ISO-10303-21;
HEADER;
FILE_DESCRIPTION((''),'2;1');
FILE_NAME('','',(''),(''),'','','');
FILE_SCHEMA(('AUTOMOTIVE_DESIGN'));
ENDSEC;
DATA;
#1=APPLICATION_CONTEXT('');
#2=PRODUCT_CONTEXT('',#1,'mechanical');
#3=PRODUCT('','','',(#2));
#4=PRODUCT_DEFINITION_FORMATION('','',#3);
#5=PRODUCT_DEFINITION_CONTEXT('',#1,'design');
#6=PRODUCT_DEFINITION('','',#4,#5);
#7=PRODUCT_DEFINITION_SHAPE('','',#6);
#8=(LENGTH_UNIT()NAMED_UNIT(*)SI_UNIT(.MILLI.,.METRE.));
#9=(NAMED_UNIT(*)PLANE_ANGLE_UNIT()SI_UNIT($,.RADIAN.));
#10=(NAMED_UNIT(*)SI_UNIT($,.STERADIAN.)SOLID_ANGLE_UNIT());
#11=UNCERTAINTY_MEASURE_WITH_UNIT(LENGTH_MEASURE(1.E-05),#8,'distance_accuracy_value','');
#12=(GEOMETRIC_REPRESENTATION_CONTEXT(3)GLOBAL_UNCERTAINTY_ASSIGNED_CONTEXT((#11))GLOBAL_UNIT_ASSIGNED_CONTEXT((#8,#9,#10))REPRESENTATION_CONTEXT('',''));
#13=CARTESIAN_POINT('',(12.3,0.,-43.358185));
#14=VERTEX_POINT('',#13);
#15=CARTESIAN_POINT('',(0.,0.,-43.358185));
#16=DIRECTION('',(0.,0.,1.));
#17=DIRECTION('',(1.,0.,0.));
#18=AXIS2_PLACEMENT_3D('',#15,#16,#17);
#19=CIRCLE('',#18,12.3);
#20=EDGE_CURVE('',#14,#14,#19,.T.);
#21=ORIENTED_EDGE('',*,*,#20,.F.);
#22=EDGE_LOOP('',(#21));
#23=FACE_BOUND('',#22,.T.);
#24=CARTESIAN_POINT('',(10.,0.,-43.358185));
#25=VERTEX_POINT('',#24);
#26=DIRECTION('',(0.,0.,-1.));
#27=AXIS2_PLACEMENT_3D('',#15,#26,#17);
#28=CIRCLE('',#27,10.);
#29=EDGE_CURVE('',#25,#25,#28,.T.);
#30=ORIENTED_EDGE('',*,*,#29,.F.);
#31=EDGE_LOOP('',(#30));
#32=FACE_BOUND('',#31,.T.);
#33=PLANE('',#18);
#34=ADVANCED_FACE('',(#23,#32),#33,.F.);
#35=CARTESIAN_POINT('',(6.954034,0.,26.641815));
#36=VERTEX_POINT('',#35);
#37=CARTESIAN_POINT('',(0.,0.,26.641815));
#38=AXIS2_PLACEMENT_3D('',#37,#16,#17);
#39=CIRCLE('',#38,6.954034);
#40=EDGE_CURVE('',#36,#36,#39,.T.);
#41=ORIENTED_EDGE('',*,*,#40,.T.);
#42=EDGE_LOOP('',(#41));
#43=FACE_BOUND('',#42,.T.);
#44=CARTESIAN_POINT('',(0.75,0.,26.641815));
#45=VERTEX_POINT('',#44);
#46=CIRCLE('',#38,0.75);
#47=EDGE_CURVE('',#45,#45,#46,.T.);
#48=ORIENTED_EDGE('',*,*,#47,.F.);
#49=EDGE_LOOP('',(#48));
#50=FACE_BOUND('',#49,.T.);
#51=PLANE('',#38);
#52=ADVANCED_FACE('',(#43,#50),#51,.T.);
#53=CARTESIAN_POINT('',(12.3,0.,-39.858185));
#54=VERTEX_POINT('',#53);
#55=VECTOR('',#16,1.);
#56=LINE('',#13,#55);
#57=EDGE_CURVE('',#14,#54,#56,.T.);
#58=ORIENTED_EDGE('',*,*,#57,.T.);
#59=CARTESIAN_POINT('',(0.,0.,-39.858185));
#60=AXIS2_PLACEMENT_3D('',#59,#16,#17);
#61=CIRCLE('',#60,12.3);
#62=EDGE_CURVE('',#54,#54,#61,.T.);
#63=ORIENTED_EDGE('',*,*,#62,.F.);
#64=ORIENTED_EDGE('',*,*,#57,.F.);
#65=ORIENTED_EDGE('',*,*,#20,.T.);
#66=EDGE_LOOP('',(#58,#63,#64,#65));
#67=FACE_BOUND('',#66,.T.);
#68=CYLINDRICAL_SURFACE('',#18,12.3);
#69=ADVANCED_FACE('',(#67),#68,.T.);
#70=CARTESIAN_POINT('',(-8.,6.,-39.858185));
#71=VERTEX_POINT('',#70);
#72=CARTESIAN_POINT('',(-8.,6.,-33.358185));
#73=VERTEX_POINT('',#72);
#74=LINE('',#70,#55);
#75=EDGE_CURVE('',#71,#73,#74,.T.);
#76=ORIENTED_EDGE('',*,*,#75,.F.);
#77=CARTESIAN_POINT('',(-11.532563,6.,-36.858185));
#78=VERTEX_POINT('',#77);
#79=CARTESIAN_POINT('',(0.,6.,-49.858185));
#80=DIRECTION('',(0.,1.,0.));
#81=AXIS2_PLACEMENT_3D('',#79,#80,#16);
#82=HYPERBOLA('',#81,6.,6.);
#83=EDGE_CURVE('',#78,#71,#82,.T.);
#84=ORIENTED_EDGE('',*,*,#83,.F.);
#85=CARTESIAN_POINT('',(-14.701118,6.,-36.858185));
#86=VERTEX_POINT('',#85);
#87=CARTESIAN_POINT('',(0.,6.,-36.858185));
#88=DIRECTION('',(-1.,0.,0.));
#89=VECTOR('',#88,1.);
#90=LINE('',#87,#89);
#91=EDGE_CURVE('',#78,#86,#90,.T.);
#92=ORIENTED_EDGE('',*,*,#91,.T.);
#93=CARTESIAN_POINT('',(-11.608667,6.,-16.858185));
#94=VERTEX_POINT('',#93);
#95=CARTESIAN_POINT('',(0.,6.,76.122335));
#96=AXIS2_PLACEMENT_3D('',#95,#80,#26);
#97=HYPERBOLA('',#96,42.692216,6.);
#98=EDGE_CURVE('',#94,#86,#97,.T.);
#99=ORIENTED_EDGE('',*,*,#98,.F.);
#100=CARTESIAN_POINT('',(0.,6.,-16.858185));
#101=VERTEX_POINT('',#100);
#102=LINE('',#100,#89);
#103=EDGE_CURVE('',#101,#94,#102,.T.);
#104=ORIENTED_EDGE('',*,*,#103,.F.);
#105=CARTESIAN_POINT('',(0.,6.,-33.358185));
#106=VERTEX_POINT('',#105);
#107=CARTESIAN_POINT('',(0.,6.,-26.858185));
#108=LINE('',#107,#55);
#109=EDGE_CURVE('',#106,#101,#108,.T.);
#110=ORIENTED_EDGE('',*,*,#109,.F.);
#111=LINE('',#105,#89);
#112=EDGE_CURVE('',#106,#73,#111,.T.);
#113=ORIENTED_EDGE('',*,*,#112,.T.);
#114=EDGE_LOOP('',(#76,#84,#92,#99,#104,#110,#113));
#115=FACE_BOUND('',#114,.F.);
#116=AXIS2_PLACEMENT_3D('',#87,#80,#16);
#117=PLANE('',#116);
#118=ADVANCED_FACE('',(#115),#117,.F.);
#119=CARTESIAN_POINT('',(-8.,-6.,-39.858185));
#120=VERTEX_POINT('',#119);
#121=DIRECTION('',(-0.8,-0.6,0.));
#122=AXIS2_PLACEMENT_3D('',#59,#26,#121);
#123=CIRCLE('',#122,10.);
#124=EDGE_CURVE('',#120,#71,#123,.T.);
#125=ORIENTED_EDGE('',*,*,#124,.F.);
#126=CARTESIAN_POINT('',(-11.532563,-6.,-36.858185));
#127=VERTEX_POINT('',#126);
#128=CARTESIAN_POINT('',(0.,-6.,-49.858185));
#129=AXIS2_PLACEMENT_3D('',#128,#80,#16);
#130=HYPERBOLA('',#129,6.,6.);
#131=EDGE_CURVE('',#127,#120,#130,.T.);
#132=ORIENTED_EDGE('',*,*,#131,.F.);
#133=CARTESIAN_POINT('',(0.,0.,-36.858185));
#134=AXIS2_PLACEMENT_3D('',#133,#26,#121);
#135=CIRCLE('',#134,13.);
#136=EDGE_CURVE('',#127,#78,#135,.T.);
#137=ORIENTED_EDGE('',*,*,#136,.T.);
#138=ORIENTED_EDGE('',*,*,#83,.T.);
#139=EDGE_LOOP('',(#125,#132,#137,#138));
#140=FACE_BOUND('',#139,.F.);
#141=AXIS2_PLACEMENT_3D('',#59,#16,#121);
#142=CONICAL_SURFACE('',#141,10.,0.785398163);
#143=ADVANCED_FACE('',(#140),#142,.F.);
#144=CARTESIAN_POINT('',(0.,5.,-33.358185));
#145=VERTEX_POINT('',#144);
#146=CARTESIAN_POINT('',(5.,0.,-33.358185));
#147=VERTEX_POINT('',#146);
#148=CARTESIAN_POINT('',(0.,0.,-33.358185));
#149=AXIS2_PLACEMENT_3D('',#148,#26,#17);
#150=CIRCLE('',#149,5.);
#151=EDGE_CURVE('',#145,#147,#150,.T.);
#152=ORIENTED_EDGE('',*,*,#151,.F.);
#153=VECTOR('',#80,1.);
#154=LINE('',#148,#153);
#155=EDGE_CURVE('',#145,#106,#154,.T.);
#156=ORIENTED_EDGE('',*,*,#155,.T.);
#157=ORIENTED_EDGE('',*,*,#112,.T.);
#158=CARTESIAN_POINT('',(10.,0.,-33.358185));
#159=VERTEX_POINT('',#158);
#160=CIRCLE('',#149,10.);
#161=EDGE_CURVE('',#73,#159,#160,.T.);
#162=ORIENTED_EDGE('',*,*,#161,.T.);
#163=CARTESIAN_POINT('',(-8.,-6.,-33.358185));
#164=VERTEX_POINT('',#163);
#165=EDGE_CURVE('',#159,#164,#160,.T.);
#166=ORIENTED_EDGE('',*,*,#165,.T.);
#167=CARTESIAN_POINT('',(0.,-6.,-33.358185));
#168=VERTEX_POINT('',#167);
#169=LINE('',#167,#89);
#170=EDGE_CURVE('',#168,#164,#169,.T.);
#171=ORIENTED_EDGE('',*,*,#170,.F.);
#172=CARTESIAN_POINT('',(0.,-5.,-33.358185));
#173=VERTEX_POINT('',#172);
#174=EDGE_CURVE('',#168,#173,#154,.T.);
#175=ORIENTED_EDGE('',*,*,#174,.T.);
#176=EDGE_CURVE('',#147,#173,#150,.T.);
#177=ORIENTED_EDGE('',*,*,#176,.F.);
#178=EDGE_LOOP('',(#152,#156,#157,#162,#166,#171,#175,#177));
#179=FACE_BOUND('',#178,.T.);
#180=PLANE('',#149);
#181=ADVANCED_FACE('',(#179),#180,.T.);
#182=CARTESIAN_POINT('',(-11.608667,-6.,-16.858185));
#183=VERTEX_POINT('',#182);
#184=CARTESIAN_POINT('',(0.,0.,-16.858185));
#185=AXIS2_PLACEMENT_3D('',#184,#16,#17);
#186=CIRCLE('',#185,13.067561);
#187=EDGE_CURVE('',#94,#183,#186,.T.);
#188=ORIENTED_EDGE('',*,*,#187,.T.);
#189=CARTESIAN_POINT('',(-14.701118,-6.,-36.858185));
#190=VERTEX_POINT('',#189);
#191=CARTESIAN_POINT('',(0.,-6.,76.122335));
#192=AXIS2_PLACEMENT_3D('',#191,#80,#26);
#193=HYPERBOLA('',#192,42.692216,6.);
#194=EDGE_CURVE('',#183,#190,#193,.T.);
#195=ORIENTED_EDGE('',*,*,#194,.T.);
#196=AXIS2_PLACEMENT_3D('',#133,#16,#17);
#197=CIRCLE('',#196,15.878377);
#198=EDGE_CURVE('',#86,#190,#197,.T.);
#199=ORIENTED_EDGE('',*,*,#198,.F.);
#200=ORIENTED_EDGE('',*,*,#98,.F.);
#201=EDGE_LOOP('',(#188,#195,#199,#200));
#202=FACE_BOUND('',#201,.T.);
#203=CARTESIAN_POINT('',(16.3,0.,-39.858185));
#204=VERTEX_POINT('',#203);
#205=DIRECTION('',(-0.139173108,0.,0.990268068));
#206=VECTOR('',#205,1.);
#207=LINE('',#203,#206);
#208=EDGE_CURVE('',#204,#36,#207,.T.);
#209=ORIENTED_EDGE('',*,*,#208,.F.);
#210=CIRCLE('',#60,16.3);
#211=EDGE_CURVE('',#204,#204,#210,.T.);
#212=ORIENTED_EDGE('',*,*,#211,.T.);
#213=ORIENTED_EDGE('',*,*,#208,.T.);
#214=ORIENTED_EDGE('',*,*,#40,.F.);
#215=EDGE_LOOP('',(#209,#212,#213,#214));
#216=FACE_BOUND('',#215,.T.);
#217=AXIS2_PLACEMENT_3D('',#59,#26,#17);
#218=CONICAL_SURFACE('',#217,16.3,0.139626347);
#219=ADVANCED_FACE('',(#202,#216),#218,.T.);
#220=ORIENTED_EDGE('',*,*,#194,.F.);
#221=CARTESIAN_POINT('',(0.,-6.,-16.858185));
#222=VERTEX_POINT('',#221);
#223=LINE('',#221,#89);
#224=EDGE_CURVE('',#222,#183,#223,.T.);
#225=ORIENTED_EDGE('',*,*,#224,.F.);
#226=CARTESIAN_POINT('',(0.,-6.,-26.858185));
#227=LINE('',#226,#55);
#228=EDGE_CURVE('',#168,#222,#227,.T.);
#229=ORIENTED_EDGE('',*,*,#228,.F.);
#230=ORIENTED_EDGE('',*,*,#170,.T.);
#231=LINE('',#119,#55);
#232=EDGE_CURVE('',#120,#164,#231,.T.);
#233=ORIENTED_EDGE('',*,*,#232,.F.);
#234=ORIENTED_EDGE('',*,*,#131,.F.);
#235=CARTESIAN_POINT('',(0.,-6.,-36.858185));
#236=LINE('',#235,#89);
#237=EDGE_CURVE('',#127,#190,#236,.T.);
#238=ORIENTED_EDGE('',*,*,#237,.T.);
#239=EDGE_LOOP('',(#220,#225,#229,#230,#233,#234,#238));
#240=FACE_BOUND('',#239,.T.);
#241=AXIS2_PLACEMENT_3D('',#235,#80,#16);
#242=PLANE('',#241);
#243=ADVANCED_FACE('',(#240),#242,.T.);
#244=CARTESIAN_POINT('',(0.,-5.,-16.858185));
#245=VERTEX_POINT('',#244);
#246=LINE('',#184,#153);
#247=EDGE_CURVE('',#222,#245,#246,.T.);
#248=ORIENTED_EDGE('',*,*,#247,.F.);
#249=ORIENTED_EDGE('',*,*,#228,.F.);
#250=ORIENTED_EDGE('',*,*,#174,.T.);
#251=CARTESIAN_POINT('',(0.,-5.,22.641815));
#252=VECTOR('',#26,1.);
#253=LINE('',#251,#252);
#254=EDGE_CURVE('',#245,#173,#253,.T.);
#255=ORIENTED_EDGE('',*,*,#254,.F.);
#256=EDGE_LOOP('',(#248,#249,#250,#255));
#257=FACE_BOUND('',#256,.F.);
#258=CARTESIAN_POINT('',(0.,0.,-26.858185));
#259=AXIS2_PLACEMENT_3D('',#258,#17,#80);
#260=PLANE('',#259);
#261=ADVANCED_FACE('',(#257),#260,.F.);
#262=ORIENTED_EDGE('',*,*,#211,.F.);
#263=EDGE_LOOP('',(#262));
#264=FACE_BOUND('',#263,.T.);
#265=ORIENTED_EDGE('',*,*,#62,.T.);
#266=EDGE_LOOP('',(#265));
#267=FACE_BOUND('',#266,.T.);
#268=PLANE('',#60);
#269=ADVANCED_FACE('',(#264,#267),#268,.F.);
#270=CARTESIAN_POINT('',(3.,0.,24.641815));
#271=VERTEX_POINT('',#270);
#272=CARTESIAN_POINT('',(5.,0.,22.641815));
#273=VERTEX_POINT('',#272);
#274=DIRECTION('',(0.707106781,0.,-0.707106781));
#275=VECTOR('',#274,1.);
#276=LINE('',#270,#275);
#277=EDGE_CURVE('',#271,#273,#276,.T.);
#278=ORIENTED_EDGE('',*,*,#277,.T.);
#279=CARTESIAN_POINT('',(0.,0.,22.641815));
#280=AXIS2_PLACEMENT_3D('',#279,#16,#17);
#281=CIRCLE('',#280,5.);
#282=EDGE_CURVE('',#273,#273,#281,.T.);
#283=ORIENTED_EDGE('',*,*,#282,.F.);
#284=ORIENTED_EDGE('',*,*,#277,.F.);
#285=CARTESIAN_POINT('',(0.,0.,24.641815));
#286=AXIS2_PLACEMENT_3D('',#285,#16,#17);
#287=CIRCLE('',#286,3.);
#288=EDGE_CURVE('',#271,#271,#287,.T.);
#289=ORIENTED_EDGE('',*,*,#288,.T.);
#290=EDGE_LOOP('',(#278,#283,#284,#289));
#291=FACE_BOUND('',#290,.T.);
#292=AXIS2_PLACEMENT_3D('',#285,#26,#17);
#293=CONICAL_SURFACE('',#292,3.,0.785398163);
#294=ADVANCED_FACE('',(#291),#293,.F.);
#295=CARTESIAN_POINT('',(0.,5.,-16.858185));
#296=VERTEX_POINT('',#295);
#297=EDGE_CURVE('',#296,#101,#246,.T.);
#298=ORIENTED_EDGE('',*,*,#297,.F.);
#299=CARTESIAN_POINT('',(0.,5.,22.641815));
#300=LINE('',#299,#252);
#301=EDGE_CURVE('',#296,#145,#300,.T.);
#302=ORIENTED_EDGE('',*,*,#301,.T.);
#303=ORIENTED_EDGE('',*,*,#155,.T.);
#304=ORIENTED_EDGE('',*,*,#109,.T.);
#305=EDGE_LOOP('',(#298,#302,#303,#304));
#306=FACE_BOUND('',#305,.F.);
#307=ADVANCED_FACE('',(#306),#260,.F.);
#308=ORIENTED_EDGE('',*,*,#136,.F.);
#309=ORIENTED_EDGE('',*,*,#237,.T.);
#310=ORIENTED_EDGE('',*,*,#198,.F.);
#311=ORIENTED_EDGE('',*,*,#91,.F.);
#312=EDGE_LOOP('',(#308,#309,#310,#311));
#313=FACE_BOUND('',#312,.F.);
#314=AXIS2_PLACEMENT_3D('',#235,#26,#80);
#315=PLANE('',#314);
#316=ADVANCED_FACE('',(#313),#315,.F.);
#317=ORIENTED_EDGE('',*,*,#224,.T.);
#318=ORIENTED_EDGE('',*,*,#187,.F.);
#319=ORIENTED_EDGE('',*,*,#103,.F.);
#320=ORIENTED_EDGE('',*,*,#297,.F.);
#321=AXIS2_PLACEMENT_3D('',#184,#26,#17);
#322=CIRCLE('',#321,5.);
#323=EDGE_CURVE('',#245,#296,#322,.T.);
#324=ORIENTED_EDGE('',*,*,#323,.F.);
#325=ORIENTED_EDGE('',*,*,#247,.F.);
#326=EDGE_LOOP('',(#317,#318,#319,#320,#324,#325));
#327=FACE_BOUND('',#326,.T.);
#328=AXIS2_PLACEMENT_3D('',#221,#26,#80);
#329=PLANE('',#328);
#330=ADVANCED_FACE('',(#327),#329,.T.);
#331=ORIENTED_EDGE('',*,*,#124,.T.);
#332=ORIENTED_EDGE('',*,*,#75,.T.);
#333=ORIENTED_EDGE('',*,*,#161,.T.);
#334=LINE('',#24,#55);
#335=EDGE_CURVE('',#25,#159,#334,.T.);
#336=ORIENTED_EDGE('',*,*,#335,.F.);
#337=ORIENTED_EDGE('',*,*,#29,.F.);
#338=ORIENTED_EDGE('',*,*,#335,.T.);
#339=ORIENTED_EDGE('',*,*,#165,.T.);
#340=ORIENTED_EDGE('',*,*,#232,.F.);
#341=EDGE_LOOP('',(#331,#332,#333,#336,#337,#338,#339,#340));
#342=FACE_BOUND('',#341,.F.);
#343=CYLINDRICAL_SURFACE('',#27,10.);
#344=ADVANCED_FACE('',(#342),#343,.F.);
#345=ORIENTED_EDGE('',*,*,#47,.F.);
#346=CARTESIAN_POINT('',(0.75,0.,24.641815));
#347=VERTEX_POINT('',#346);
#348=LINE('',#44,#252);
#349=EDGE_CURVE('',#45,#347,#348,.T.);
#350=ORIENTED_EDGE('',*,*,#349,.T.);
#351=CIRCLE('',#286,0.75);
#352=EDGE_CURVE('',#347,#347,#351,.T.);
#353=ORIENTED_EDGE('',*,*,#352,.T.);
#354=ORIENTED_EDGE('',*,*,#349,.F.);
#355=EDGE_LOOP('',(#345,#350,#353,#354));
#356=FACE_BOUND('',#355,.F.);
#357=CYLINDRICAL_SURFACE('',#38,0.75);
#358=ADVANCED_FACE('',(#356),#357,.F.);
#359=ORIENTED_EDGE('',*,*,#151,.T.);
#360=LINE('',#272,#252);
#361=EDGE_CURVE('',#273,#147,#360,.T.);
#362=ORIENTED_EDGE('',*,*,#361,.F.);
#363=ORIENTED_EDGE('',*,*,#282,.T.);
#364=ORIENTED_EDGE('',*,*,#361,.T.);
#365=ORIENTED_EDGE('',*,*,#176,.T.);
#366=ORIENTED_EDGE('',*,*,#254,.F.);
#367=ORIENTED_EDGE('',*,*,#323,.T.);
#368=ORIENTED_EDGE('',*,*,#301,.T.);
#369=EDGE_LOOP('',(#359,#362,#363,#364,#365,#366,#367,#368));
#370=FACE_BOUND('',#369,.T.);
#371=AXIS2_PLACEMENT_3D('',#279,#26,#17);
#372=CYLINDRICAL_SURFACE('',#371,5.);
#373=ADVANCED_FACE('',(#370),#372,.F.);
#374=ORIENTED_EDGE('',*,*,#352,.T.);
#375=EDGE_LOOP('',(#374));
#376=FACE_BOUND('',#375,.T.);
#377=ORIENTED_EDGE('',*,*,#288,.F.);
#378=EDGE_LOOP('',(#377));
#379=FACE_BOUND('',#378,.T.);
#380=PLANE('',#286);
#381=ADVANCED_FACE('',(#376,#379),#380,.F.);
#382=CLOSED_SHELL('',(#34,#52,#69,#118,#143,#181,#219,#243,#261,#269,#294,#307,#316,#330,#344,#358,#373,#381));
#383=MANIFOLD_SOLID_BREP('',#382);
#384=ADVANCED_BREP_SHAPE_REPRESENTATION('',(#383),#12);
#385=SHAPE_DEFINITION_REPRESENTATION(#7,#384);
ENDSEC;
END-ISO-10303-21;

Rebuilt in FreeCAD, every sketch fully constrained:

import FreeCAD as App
import Part
import Sketcher
Q = App.Units.Quantity


def edges_at(feature, points):
    """Names of the edges that pass closest to the given points."""
    edges = feature.Shape.Edges
    near = lambda p: min(range(len(edges)), key=lambda i: edges[i].distToShape(Part.Vertex(*p))[0])
    return sorted({f"Edge{near(p) + 1}" for p in points})

doc = App.newDocument("Part")
params = doc.addObject("Spreadsheet::Sheet", "Params")
for row, (alias, value) in enumerate([
    ("sketch1_width", "3 mm"),
    ("sketch1_width2", "4 mm"),
    ("sketch1_height", "2 mm"),
    ("sketch1_height2", "66 mm"),
    ("sketch1_width3", "7.3 mm"),
    ("revolution_angle", "360 deg"),
    ("sketch2_diameter", "1.5 mm"),
    ("sketch3_width", "12 mm"),
    ("sketch3_height", "20 mm"),
    ("pocket2_length", "25 mm"),
    ("sketch4_diameter", "20 mm"),
    ("pocket3_length", "10 mm"),
    ("chamfer_size", "3 mm"),
], start=1):
    params.set(f"A{row}", alias)
    params.set(f"B{row}", "=" + value)
    params.setAlias(f"B{row}", alias)

body = doc.addObject("PartDesign::Body", "Body")

# Sketch on XZ plane
sketch1 = body.newObject("Sketcher::SketchObject", "Sketch")
sketch1.AttachmentSupport = (doc.getObject("XZ_Plane"), [""])
sketch1.MapMode = "FlatFace"
sketch1.addGeometry([
    Part.LineSegment(App.Vector(7, 26.6, 0), App.Vector(0, 26.6, 0)),  # 0
    Part.LineSegment(App.Vector(0, 26.6, 0), App.Vector(0, 24.6, 0)),  # 1
    Part.LineSegment(App.Vector(0, 24.6, 0), App.Vector(3, 24.6, 0)),  # 2
    Part.LineSegment(App.Vector(3, 24.6, 0), App.Vector(5, 22.6, 0)),  # 3
    Part.LineSegment(App.Vector(5, 22.6, 0), App.Vector(5, -43.4, 0)),  # 4
    Part.LineSegment(App.Vector(5, -43.4, 0), App.Vector(12.3, -43.4, 0)),  # 5
    Part.LineSegment(App.Vector(12.3, -43.4, 0), App.Vector(12.3, -39.9, 0)),  # 6
    Part.LineSegment(App.Vector(12.3, -39.9, 0), App.Vector(16.3, -39.9, 0)),  # 7
    Part.LineSegment(App.Vector(16.3, -39.9, 0), App.Vector(7, 26.6, 0)),  # 8
], False)
sketch1.addConstraint([
    Sketcher.Constraint("Coincident", 0, 2, 1, 1),
    Sketcher.Constraint("Coincident", 1, 2, 2, 1),
    Sketcher.Constraint("Coincident", 2, 2, 3, 1),
    Sketcher.Constraint("Coincident", 3, 2, 4, 1),
    Sketcher.Constraint("Coincident", 4, 2, 5, 1),
    Sketcher.Constraint("Coincident", 5, 2, 6, 1),
    Sketcher.Constraint("Coincident", 6, 2, 7, 1),
    Sketcher.Constraint("Coincident", 7, 2, 8, 1),
    Sketcher.Constraint("Coincident", 8, 2, 0, 1),
    Sketcher.Constraint("Horizontal", 0),
    Sketcher.Constraint("Vertical", 1),
    Sketcher.Constraint("Horizontal", 2),
    Sketcher.Constraint("Vertical", 4),
    Sketcher.Constraint("Horizontal", 5),
    Sketcher.Constraint("Vertical", 6),
    Sketcher.Constraint("Horizontal", 7),
    Sketcher.Constraint("PointOnObject", 0, 2, -2),
    Sketcher.Constraint("DistanceX", 2, 1, 2, 2, 3.0),
    Sketcher.Constraint("DistanceX", 7, 1, 7, 2, 4.0),
    Sketcher.Constraint("DistanceY", 1, 2, 1, 1, 2.0),
    Sketcher.Constraint("DistanceY", 4, 2, 4, 1, 66.0),
    Sketcher.Constraint("Angle", 3, Q("-45 deg")),
    Sketcher.Constraint("Angle", 8, Q("98 deg")),
    Sketcher.Constraint("DistanceX", 5, 1, 5, 2, 7.3),
    Sketcher.Constraint("DistanceY", 6, 1, 6, 2, 3.5),
    Sketcher.Constraint("DistanceX", -1, 1, 3, 2, 5.0),
    Sketcher.Constraint("DistanceY", -1, 1, 0, 2, 26.641815),
])
sketch1.setExpression("Constraints[17]", "Params.sketch1_width")
sketch1.setExpression("Constraints[18]", "Params.sketch1_width2")
sketch1.setExpression("Constraints[19]", "Params.sketch1_height")
sketch1.setExpression("Constraints[20]", "Params.sketch1_height2")
sketch1.setExpression("Constraints[23]", "Params.sketch1_width3")
revolution = body.newObject("PartDesign::Revolution", "Revolution")
revolution.Profile = sketch1
revolution.ReferenceAxis = (sketch1, ["V_Axis"])
revolution.setExpression("Angle", "Params.revolution_angle")

# Sketch on XY plane
sketch2 = body.newObject("Sketcher::SketchObject", "Sketch001")
sketch2.AttachmentSupport = (doc.getObject("XY_Plane"), [""])
sketch2.MapMode = "FlatFace"
sketch2.AttachmentOffset = App.Placement(App.Vector(0, 0, 26.641815), App.Rotation())
sketch2.addGeometry(Part.Circle(App.Vector(0, 0, 0), App.Vector(0, 0, 1), 0.8), False)
sketch2.addConstraint([
    Sketcher.Constraint("Coincident", 0, 3, -1, 1),
    Sketcher.Constraint("Diameter", 0, 1.5),
])
sketch2.setExpression("Constraints[1]", "Params.sketch2_diameter")
pocket1 = body.newObject("PartDesign::Pocket", "Pocket")
pocket1.Profile = sketch2
pocket1.Type = "ThroughAll"

# Sketch on YZ plane
sketch3 = body.newObject("Sketcher::SketchObject", "Sketch002")
sketch3.AttachmentSupport = (doc.getObject("YZ_Plane"), [""])
sketch3.MapMode = "FlatFace"
sketch3.addGeometry([
    Part.LineSegment(App.Vector(-6, -17, 0), App.Vector(-6, -37, 0)),
    Part.LineSegment(App.Vector(-6, -37, 0), App.Vector(6, -37, 0)),
    Part.LineSegment(App.Vector(6, -37, 0), App.Vector(6, -17, 0)),
    Part.LineSegment(App.Vector(6, -17, 0), App.Vector(-6, -17, 0)),
], False)
sketch3.addConstraint([
    Sketcher.Constraint("Coincident", 0, 2, 1, 1),
    Sketcher.Constraint("Coincident", 1, 2, 2, 1),
    Sketcher.Constraint("Coincident", 2, 2, 3, 1),
    Sketcher.Constraint("Coincident", 3, 2, 0, 1),
    Sketcher.Constraint("Vertical", 0),
    Sketcher.Constraint("Horizontal", 1),
    Sketcher.Constraint("Vertical", 2),
    Sketcher.Constraint("Horizontal", 3),
    Sketcher.Constraint("DistanceX", 1, 1, 1, 2, 12.0),
    Sketcher.Constraint("DistanceY", 0, 2, 0, 1, 20.0),
    Sketcher.Constraint("DistanceX", 0, 2, -1, 1, 6.0),
    Sketcher.Constraint("DistanceY", 0, 2, -1, 1, 36.858185),
])
sketch3.setExpression("Constraints[8]", "Params.sketch3_width")
sketch3.setExpression("Constraints[9]", "Params.sketch3_height")
pocket2 = body.newObject("PartDesign::Pocket", "Pocket001")
pocket2.Profile = sketch3
pocket2.setExpression("Length", "Params.pocket2_length")

# Sketch on XY plane
sketch4 = body.newObject("Sketcher::SketchObject", "Sketch003")
sketch4.AttachmentSupport = (doc.getObject("XY_Plane"), [""])
sketch4.MapMode = "FlatFace"
sketch4.AttachmentOffset = App.Placement(App.Vector(0, 0, -43.358185), App.Rotation())
sketch4.addGeometry(Part.Circle(App.Vector(0, 0, 0), App.Vector(0, 0, 1), 10), False)
sketch4.addConstraint([
    Sketcher.Constraint("Coincident", 0, 3, -1, 1),
    Sketcher.Constraint("Diameter", 0, 20.0),
])
sketch4.setExpression("Constraints[1]", "Params.sketch4_diameter")
pocket3 = body.newObject("PartDesign::Pocket", "Pocket002")
pocket3.Profile = sketch4
pocket3.setExpression("Length", "Params.pocket3_length")
pocket3.Reversed = True
doc.recompute()

chamfer = body.newObject("PartDesign::Chamfer", "Chamfer")
chamfer.Base = (pocket3, edges_at(pocket3, [(-10, 0, -36.858)]))
chamfer.setExpression("Size", "Params.chamfer_size")

doc.recompute()
